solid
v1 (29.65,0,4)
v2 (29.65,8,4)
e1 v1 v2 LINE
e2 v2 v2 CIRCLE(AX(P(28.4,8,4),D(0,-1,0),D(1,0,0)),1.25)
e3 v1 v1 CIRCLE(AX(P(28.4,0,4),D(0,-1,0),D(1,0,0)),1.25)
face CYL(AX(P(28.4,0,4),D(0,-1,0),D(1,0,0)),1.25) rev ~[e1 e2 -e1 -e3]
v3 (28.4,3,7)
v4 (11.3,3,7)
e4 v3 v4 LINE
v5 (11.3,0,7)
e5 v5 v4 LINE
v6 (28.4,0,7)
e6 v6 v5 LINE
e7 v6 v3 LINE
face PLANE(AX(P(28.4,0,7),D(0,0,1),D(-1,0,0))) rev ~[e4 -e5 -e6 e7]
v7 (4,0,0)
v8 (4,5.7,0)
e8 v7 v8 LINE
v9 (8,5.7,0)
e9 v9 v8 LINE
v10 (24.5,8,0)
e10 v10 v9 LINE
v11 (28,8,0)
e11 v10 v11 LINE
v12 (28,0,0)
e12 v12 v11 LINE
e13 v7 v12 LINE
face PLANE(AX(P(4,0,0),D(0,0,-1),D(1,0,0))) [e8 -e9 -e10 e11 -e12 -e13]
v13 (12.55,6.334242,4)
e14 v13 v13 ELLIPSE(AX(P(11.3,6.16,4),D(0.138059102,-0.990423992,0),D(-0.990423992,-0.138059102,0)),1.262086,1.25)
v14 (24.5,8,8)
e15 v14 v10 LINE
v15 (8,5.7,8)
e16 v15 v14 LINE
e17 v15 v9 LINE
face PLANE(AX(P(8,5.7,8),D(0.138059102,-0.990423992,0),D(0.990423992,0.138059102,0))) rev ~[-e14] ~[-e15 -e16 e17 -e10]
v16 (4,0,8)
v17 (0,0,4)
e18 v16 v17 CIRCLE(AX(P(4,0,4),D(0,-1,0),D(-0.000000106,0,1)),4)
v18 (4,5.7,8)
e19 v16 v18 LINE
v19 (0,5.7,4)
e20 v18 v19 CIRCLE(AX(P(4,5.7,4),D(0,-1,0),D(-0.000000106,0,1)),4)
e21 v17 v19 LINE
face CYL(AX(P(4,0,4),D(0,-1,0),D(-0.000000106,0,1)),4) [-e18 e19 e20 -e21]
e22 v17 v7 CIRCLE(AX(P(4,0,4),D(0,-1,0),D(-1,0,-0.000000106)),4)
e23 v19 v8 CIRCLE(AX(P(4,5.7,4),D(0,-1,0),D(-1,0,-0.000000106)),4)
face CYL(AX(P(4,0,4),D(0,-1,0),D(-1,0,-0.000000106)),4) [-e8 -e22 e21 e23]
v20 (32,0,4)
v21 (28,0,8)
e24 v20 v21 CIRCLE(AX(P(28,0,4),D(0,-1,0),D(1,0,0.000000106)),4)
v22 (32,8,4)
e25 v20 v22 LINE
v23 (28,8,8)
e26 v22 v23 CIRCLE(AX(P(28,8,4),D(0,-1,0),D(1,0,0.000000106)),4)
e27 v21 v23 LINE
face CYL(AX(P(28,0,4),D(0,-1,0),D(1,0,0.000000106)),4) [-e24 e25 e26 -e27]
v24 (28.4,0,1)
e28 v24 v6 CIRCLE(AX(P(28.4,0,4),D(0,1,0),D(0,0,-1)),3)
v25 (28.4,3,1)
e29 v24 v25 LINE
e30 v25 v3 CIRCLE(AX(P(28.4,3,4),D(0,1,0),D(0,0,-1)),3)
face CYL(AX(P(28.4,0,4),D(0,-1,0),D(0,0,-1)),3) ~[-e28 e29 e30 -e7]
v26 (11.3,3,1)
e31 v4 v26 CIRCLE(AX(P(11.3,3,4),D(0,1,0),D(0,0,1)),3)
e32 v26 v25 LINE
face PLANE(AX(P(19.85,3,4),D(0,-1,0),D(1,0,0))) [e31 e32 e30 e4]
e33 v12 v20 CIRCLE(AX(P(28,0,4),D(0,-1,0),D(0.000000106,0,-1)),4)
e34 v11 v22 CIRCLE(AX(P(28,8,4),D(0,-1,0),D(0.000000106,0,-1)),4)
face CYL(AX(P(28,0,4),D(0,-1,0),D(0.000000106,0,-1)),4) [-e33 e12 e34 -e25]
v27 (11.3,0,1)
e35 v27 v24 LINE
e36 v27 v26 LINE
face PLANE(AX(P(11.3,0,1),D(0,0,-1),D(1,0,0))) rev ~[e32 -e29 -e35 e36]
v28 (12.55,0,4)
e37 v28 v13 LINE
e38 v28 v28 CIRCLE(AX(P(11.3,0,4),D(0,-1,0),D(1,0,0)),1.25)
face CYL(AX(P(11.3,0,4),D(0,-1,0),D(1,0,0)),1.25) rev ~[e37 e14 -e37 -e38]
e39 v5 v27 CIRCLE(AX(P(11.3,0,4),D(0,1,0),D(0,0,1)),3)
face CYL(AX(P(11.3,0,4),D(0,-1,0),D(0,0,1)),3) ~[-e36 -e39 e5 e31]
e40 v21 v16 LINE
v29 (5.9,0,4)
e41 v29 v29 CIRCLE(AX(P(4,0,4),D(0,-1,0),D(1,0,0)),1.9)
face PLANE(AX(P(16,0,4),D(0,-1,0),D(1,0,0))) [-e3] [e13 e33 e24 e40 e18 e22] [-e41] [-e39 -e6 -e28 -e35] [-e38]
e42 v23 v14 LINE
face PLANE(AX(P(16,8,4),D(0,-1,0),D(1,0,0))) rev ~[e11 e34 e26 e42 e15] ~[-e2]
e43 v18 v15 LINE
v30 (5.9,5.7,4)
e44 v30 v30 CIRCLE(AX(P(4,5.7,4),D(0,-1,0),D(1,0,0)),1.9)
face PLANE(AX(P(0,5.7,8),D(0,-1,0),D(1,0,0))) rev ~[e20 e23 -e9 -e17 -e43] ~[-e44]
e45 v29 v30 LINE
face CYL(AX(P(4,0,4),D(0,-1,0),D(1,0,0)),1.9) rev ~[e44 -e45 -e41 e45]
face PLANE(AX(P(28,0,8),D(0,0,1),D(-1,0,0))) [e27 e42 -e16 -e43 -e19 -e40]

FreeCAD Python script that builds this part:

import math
import FreeCAD as App
import Part
import Sketcher

doc = App.newDocument("Part")
body = doc.addObject("PartDesign::Body", "Body")

# Sketch on XZ plane
sketch1 = body.newObject("Sketcher::SketchObject", "Sketch")
sketch1.AttachmentSupport = (doc.getObject("XZ_Plane"), [""])
sketch1.MapMode = "FlatFace"
sketch1.addGeometry(Part.ArcOfCircle(Part.Circle(App.Vector(4, 4, 0), App.Vector(0, 0, 1), 4), math.radians(-179.999994), math.radians(-90.000006)), False)
sketch1.addGeometry(Part.LineSegment(App.Vector(4, 0, 0), App.Vector(28, 0, 0)), False)
sketch1.addGeometry(Part.ArcOfCircle(Part.Circle(App.Vector(28, 4, 0), App.Vector(0, 0, 1), 4), math.radians(-89.999994), math.radians(-0.000006)), False)
sketch1.addGeometry(Part.ArcOfCircle(Part.Circle(App.Vector(28, 4, 0), App.Vector(0, 0, 1), 4), math.radians(0.000006), math.radians(89.999994)), False)
sketch1.addGeometry(Part.LineSegment(App.Vector(28, 8, 0), App.Vector(4, 8, 0)), False)
sketch1.addGeometry(Part.ArcOfCircle(Part.Circle(App.Vector(4, 4, 0), App.Vector(0, 0, 1), 4), math.radians(90.000006), math.radians(179.999994)), False)
sketch1.addConstraint(Sketcher.Constraint("Tangent", 0, 2, 1, 1))
sketch1.addConstraint(Sketcher.Constraint("Tangent", 1, 2, 2, 1))
sketch1.addConstraint(Sketcher.Constraint("Tangent", 2, 2, 3, 1))
sketch1.addConstraint(Sketcher.Constraint("Tangent", 3, 2, 4, 1))
sketch1.addConstraint(Sketcher.Constraint("Tangent", 4, 2, 5, 1))
sketch1.addConstraint(Sketcher.Constraint("Tangent", 5, 2, 0, 1))
sketch1.addConstraint(Sketcher.Constraint("Horizontal", 1))
sketch1.addConstraint(Sketcher.Constraint("Horizontal", 4))
sketch1.addConstraint(Sketcher.Constraint("Equal", 0, 2))
sketch1.addConstraint(Sketcher.Constraint("Equal", 2, 3))
sketch1.addConstraint(Sketcher.Constraint("PointOnObject", 0, 2, -1))
sketch1.addConstraint(Sketcher.Constraint("PointOnObject", 5, 2, -2))
sketch1.addConstraint(Sketcher.Constraint("Horizontal", 5, 3, 2, 2))
sketch1.addConstraint(Sketcher.Constraint("Horizontal", 2, 2, 5, 2))
sketch1.addConstraint(Sketcher.Constraint("Radius", 0, 4.0))
sketch1.addConstraint(Sketcher.Constraint("DistanceX", 1, 1, 1, 2, 24.0))
pad1 = body.newObject("PartDesign::Pad", "Pad")
pad1.Profile = sketch1
pad1.Length = 8
pad1.Reversed = True

# Sketch on XZ plane
sketch2 = body.newObject("Sketcher::SketchObject", "Sketch001")
sketch2.AttachmentSupport = (doc.getObject("XZ_Plane"), [""])
sketch2.MapMode = "FlatFace"
sketch2.addGeometry(Part.Circle(App.Vector(4, 4, 0), App.Vector(0, 0, 1), 1.9), False)
sketch2.addGeometry(Part.Circle(App.Vector(11.3, 4, 0), App.Vector(0, 0, 1), 1.25), False)
sketch2.addGeometry(Part.Circle(App.Vector(28.4, 4, 0), App.Vector(0, 0, 1), 1.25), False)
sketch2.addConstraint(Sketcher.Constraint("Equal", 1, 2))
sketch2.addConstraint(Sketcher.Constraint("Horizontal", 0, 3, 1, 3))
sketch2.addConstraint(Sketcher.Constraint("Horizontal", 1, 3, 2, 3))
sketch2.addConstraint(Sketcher.Constraint("Diameter", 0, 3.8))
sketch2.addConstraint(Sketcher.Constraint("Diameter", 1, 2.5))
sketch2.addConstraint(Sketcher.Constraint("DistanceX", -1, 1, 0, 3, 4.0))
sketch2.addConstraint(Sketcher.Constraint("DistanceY", -1, 1, 0, 3, 4.0))
sketch2.addConstraint(Sketcher.Constraint("DistanceX", -1, 1, 1, 3, 11.3))
sketch2.addConstraint(Sketcher.Constraint("DistanceX", -1, 1, 2, 3, 28.4))
pocket1 = body.newObject("PartDesign::Pocket", "Pocket")
pocket1.Profile = sketch2
pocket1.Length = 25

# Sketch on XY plane
sketch3 = body.newObject("Sketcher::SketchObject", "Sketch002")
sketch3.AttachmentSupport = (doc.getObject("XY_Plane"), [""])
sketch3.MapMode = "FlatFace"
sketch3.AttachmentOffset = App.Placement(App.Vector(0, 0, 8), App.Rotation())
sketch3.addGeometry(Part.LineSegment(App.Vector(8, 5.7, 0), App.Vector(24.5, 8, 0)), False)
sketch3.addGeometry(Part.LineSegment(App.Vector(24.5, 8, 0), App.Vector(0, 8, 0)), False)
sketch3.addGeometry(Part.LineSegment(App.Vector(0, 8, 0), App.Vector(0, 5.7, 0)), False)
sketch3.addGeometry(Part.LineSegment(App.Vector(0, 5.7, 0), App.Vector(8, 5.7, 0)), False)
sketch3.addConstraint(Sketcher.Constraint("Coincident", 0, 2, 1, 1))
sketch3.addConstraint(Sketcher.Constraint("Coincident", 1, 2, 2, 1))
sketch3.addConstraint(Sketcher.Constraint("Coincident", 2, 2, 3, 1))
sketch3.addConstraint(Sketcher.Constraint("Coincident", 3, 2, 0, 1))
sketch3.addConstraint(Sketcher.Constraint("Horizontal", 1))
sketch3.addConstraint(Sketcher.Constraint("Vertical", 2))
sketch3.addConstraint(Sketcher.Constraint("Horizontal", 3))
sketch3.addConstraint(Sketcher.Constraint("PointOnObject", 1, 2, -2))
sketch3.addConstraint(Sketcher.Constraint("DistanceX", 3, 1, 3, 2, 8.0))
sketch3.addConstraint(Sketcher.Constraint("DistanceX", 1, 2, 1, 1, 24.5))
sketch3.addConstraint(Sketcher.Constraint("DistanceY", 2, 2, 2, 1, 2.3))
sketch3.addConstraint(Sketcher.Constraint("DistanceY", -1, 1, 0, 2, 8.0))
pocket2 = body.newObject("PartDesign::Pocket", "Pocket001")
pocket2.Profile = sketch3
pocket2.Length = 25

# Sketch on XZ plane
sketch4 = body.newObject("Sketcher::SketchObject", "Sketch003")
sketch4.AttachmentSupport = (doc.getObject("XZ_Plane"), [""])
sketch4.MapMode = "FlatFace"
sketch4.addGeometry(Part.ArcOfCircle(Part.Circle(App.Vector(11.3, 4, 0), App.Vector(0, 0, 1), 3), math.radians(-90), math.radians(90)), False)
sketch4.addGeometry(Part.LineSegment(App.Vector(11.3, 1, 0), App.Vector(28.4, 1, 0)), False)
sketch4.addGeometry(Part.ArcOfCircle(Part.Circle(App.Vector(28.4, 4, 0), App.Vector(0, 0, 1), 3), math.radians(90), math.radians(270)), False)
sketch4.addGeometry(Part.LineSegment(App.Vector(28.4, 7, 0), App.Vector(11.3, 7, 0)), False)
sketch4.addConstraint(Sketcher.Constraint("Tangent", 0, 1, 1, 1))
sketch4.addConstraint(Sketcher.Constraint("Tangent", 1, 2, 2, 2))
sketch4.addConstraint(Sketcher.Constraint("Tangent", 2, 1, 3, 1))
sketch4.addConstraint(Sketcher.Constraint("Tangent", 3, 2, 0, 2))
sketch4.addConstraint(Sketcher.Constraint("Horizontal", 1))
sketch4.addConstraint(Sketcher.Constraint("Horizontal", 3))
sketch4.addConstraint(Sketcher.Constraint("Radius", 0, 3.0))
sketch4.addConstraint(Sketcher.Constraint("DistanceX", 1, 1, 1, 2, 17.1))
sketch4.addConstraint(Sketcher.Constraint("DistanceY", -1, 1, 0, 3, 4.0))
sketch4.addConstraint(Sketcher.Constraint("DistanceX", -1, 1, 0, 3, 11.3))
pocket3 = body.newObject("PartDesign::Pocket", "Pocket002")
pocket3.Profile = sketch4
pocket3.Length = 3

doc.recompute()
